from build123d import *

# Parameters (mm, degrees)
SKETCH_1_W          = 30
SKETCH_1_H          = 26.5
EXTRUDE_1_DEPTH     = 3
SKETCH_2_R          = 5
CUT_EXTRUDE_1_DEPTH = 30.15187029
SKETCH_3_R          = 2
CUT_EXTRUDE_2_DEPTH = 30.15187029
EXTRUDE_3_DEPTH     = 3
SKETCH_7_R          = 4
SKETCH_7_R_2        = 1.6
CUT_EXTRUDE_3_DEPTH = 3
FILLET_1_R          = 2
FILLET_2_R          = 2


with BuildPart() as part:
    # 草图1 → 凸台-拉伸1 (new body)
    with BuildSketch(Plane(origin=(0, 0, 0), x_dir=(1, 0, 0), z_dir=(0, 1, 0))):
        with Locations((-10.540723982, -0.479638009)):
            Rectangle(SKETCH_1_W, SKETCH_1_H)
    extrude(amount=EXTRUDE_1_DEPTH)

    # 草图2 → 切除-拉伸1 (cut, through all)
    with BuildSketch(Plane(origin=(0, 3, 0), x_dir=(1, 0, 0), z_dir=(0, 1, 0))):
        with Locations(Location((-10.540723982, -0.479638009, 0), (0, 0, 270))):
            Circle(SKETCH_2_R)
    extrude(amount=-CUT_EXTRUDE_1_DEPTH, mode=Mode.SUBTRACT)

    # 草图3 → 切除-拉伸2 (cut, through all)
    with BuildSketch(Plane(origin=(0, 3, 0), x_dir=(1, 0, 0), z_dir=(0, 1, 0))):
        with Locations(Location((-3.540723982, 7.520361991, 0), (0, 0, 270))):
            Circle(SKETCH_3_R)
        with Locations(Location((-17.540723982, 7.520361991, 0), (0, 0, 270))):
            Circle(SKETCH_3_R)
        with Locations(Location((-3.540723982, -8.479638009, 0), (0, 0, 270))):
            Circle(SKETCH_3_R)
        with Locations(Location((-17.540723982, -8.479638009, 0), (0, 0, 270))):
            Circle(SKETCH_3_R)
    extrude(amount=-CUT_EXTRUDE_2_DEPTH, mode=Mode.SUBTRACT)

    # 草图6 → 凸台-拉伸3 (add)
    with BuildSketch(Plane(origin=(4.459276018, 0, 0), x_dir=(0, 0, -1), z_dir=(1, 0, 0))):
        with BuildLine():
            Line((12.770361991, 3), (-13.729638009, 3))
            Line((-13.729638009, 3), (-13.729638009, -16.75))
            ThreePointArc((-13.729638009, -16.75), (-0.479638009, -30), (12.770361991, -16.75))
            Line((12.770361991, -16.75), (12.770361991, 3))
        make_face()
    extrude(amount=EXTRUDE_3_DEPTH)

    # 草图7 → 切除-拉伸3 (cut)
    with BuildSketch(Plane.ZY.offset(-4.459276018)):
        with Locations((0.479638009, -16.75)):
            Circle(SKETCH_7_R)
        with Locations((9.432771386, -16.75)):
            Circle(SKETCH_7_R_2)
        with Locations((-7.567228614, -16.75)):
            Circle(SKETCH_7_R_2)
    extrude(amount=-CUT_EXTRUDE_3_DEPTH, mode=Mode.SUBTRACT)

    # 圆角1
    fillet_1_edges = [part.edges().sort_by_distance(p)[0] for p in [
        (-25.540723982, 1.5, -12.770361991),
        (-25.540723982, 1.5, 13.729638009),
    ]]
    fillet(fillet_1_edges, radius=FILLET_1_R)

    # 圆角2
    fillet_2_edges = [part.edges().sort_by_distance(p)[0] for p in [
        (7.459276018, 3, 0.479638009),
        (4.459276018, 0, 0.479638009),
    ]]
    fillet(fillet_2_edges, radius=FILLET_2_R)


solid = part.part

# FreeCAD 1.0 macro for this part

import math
import FreeCAD as App
import Part
import Sketcher


def edges_at(feature, points):
    """Names of the edges that pass closest to the given points."""
    edges = feature.Shape.Edges
    near = lambda p: min(range(len(edges)), key=lambda i: edges[i].distToShape(Part.Vertex(*p))[0])
    return sorted({f"Edge{near(p) + 1}" for p in points})


def add_polygon(sketch, points):
    """Adds a closed chain of lines whose ends are joined by coincident constraints."""
    first, n = sketch.GeometryCount, len(points)
    for a, b in zip(points, points[1:] + points[:1]):
        sketch.addGeometry(Part.LineSegment(App.Vector(*a, 0), App.Vector(*b, 0)), False)
    for i in range(n):
        sketch.addConstraint(Sketcher.Constraint("Coincident", first + i, 2, first + (i + 1) % n, 1))

doc = App.newDocument("Part")
params = doc.addObject("Spreadsheet::Sheet", "Params")
for row, (alias, value) in enumerate([
    ("sketch1_width", "30 mm"),
    ("sketch1_height", "26.5 mm"),
    ("pad1_length", "3 mm"),
    ("sketch2_diameter", "10 mm"),
    ("sketch3_diameter", "4 mm"),
    ("sketch4_radius", "13.25 mm"),
    ("sketch4_width", "19.75 mm"),
    ("pad2_length", "3 mm"),
    ("sketch5_diameter", "8 mm"),
    ("sketch5_diameter2", "3.2 mm"),
    ("pocket3_length", "3 mm"),
    ("fillet_radius", "2 mm"),
    ("fillet2_radius", "2 mm"),
], start=1):
    params.set(f"A{row}", alias)
    params.set(f"B{row}", "=" + value)
    params.setAlias(f"B{row}", alias)

body = doc.addObject("PartDesign::Body", "Body")

# Sketch on XZ plane
sketch1 = doc.addObject("Sketcher::SketchObject", "Sketch")
body.addObject(sketch1)
sketch1.AttachmentSupport = (doc.XZ_Plane, [""])
sketch1.MapMode = "FlatFace"
add_polygon(sketch1, [(-25.540724, -12.770362), (-25.540724, 13.729638), (4.459276, 13.729638), (4.459276, -12.770362)])  # lines 0-3
sketch1.addConstraint(Sketcher.Constraint("Vertical", 0))
sketch1.addConstraint(Sketcher.Constraint("Horizontal", 1))
sketch1.addConstraint(Sketcher.Constraint("Vertical", 2))
sketch1.addConstraint(Sketcher.Constraint("Horizontal", 3))
sketch1.addConstraint(Sketcher.Constraint("DistanceX", 1, 1, 1, 2, 30.0))
sketch1.addConstraint(Sketcher.Constraint("DistanceY", 0, 1, 0, 2, 26.5))
sketch1.addConstraint(Sketcher.Constraint("DistanceY", -1, 1, 0, 2, 13.729638))
sketch1.addConstraint(Sketcher.Constraint("DistanceX", 0, 2, -1, 1, 25.540724))
sketch1.setExpression("Constraints[8]", "Params.sketch1_width")
sketch1.setExpression("Constraints[9]", "Params.sketch1_height")
pad1 = doc.addObject("PartDesign::Pad", "Pad")
body.addObject(pad1)
pad1.Profile = sketch1
pad1.setExpression("Length", "Params.pad1_length")
pad1.Reversed = True

# Sketch on XZ plane
sketch2 = doc.addObject("Sketcher::SketchObject", "Sketch001")
body.addObject(sketch2)
sketch2.AttachmentSupport = (doc.XZ_Plane, [""])
sketch2.MapMode = "FlatFace"
sketch2.AttachmentOffset = App.Placement(App.Vector(0, 0, -3), App.Rotation())
sketch2.addGeometry(Part.Circle(App.Vector(-10.540724, 0.479638, 0), App.Vector(0, 0, 1), 5), False)
sketch2.addConstraint(Sketcher.Constraint("Diameter", 0, 10.0))
sketch2.addConstraint(Sketcher.Constraint("DistanceY", -1, 1, 0, 3, 0.479638))
sketch2.addConstraint(Sketcher.Constraint("DistanceX", 0, 3, -1, 1, 10.540724))
sketch2.setExpression("Constraints[0]", "Params.sketch2_diameter")
pocket1 = doc.addObject("PartDesign::Pocket", "Pocket")
body.addObject(pocket1)
pocket1.Profile = sketch2
pocket1.Type = "ThroughAll"
pocket1.Reversed = True

# Sketch on XZ plane
sketch3 = doc.addObject("Sketcher::SketchObject", "Sketch002")
body.addObject(sketch3)
sketch3.AttachmentSupport = (doc.XZ_Plane, [""])
sketch3.MapMode = "FlatFace"
sketch3.AttachmentOffset = App.Placement(App.Vector(0, 0, -3), App.Rotation())
sketch3.addGeometry(Part.Circle(App.Vector(-3.540724, -7.520362, 0), App.Vector(0, 0, 1), 2), False)
sketch3.addGeometry(Part.Circle(App.Vector(-17.540724, -7.520362, 0), App.Vector(0, 0, 1), 2), False)
sketch3.addGeometry(Part.Circle(App.Vector(-3.540724, 8.479638, 0), App.Vector(0, 0, 1), 2), False)
sketch3.addGeometry(Part.Circle(App.Vector(-17.540724, 8.479638, 0), App.Vector(0, 0, 1), 2), False)
sketch3.addConstraint(Sketcher.Constraint("Equal", 0, 1))
sketch3.addConstraint(Sketcher.Constraint("Equal", 1, 2))
sketch3.addConstraint(Sketcher.Constraint("Equal", 2, 3))
sketch3.addConstraint(Sketcher.Constraint("Horizontal", 0, 3, 1, 3))
sketch3.addConstraint(Sketcher.Constraint("Horizontal", 2, 3, 3, 3))
sketch3.addConstraint(Sketcher.Constraint("Vertical", 0, 3, 2, 3))
sketch3.addConstraint(Sketcher.Constraint("Vertical", 1, 3, 3, 3))
sketch3.addConstraint(Sketcher.Constraint("Diameter", 0, 4.0))
sketch3.addConstraint(Sketcher.Constraint("DistanceX", 1, 3, 0, 3, 14.0))
sketch3.addConstraint(Sketcher.Constraint("DistanceY", 0, 3, 2, 3, 16.0))
sketch3.addConstraint(Sketcher.Constraint("DistanceY", 0, 3, -1, 1, 7.520362))
sketch3.addConstraint(Sketcher.Constraint("DistanceX", 0, 3, -1, 1, 3.540724))
sketch3.setExpression("Constraints[7]", "Params.sketch3_diameter")
pocket2 = doc.addObject("PartDesign::Pocket", "Pocket001")
body.addObject(pocket2)
pocket2.Profile = sketch3
pocket2.Type = "ThroughAll"
pocket2.Reversed = True

# Sketch on YZ plane
sketch4 = doc.addObject("Sketcher::SketchObject", "Sketch003")
body.addObject(sketch4)
sketch4.AttachmentSupport = (doc.YZ_Plane, [""])
sketch4.MapMode = "FlatFace"
sketch4.AttachmentOffset = App.Placement(App.Vector(0, 0, 4.459276), App.Rotation())
sketch4.addGeometry(Part.LineSegment(App.Vector(3, -12.770362, 0), App.Vector(3, 13.729638, 0)), False)
sketch4.addGeometry(Part.LineSegment(App.Vector(3, 13.729638, 0), App.Vector(-16.75, 13.729638, 0)), False)
sketch4.addGeometry(Part.ArcOfCircle(Part.Circle(App.Vector(-16.75, 0.479638, 0), App.Vector(0, 0, 1), 13.25), math.radians(90), math.radians(270)), False)
sketch4.addGeometry(Part.LineSegment(App.Vector(-16.75, -12.770362, 0), App.Vector(3, -12.770362, 0)), False)
sketch4.addConstraint(Sketcher.Constraint("Coincident", 0, 2, 1, 1))
sketch4.addConstraint(Sketcher.Constraint("Tangent", 1, 2, 2, 1))
sketch4.addConstraint(Sketcher.Constraint("Tangent", 2, 2, 3, 1))
sketch4.addConstraint(Sketcher.Constraint("Coincident", 3, 2, 0, 1))
sketch4.addConstraint(Sketcher.Constraint("Vertical", 0))
sketch4.addConstraint(Sketcher.Constraint("Horizontal", 1))
sketch4.addConstraint(Sketcher.Constraint("Horizontal", 3))
sketch4.addConstraint(Sketcher.Constraint("Radius", 2, 13.25))
sketch4.addConstraint(Sketcher.Constraint("DistanceX", -1, 1, 0, 2, 3.0))
sketch4.addConstraint(Sketcher.Constraint("DistanceX", 1, 2, 1, 1, 19.75))
sketch4.addConstraint(Sketcher.Constraint("DistanceY", -1, 1, 2, 3, 0.479638))
sketch4.setExpression("Constraints[7]", "Params.sketch4_radius")
sketch4.setExpression("Constraints[9]", "Params.sketch4_width")
pad2 = doc.addObject("PartDesign::Pad", "Pad001")
body.addObject(pad2)
pad2.Profile = sketch4
pad2.setExpression("Length", "Params.pad2_length")

# Sketch on YZ plane
sketch5 = doc.addObject("Sketcher::SketchObject", "Sketch004")
body.addObject(sketch5)
sketch5.AttachmentSupport = (doc.YZ_Plane, [""])
sketch5.MapMode = "FlatFace"
sketch5.AttachmentOffset = App.Placement(App.Vector(0, 0, 4.459276), App.Rotation())
sketch5.addGeometry(Part.Circle(App.Vector(-16.75, 0.479638, 0), App.Vector(0, 0, 1), 4), False)
sketch5.addGeometry(Part.Circle(App.Vector(-16.75, 9.432771, 0), App.Vector(0, 0, 1), 1.6), False)
sketch5.addGeometry(Part.Circle(App.Vector(-16.75, -7.567229, 0), App.Vector(0, 0, 1), 1.6), False)
sketch5.addConstraint(Sketcher.Constraint("Equal", 1, 2))
sketch5.addConstraint(Sketcher.Constraint("Vertical", 0, 3, 1, 3))
sketch5.addConstraint(Sketcher.Constraint("Vertical", 1, 3, 2, 3))
sketch5.addConstraint(Sketcher.Constraint("Diameter", 0, 8.0))
sketch5.addConstraint(Sketcher.Constraint("Diameter", 1, 3.2))
sketch5.addConstraint(Sketcher.Constraint("DistanceY", 2, 3, 1, 3, 17.0))
sketch5.addConstraint(Sketcher.Constraint("DistanceX", 0, 3, -1, 1, 16.75))
sketch5.addConstraint(Sketcher.Constraint("DistanceY", -1, 1, 0, 3, 0.479638))
sketch5.addConstraint(Sketcher.Constraint("DistanceY", -1, 1, 1, 3, 9.432771))
sketch5.setExpression("Constraints[3]", "Params.sketch5_diameter")
sketch5.setExpression("Constraints[4]", "Params.sketch5_diameter2")
pocket3 = doc.addObject("PartDesign::Pocket", "Pocket002")
body.addObject(pocket3)
pocket3.Profile = sketch5
pocket3.setExpression("Length", "Params.pocket3_length")
pocket3.Reversed = True
doc.recompute()

fillet = doc.addObject("PartDesign::Fillet", "Fillet")
body.addObject(fillet)
fillet.Base = (pocket3, edges_at(pocket3, [(-25.541, 1.5, -12.77), (-25.541, 1.5, 13.73)]))
fillet.setExpression("Radius", "Params.fillet_radius")
doc.recompute()

fillet2 = doc.addObject("PartDesign::Fillet", "Fillet001")
body.addObject(fillet2)
fillet2.Base = (fillet, edges_at(fillet, [(7.459, 3, 0.48), (4.459, 0, 0.48)]))
fillet2.setExpression("Radius", "Params.fillet2_radius")

doc.recompute()
